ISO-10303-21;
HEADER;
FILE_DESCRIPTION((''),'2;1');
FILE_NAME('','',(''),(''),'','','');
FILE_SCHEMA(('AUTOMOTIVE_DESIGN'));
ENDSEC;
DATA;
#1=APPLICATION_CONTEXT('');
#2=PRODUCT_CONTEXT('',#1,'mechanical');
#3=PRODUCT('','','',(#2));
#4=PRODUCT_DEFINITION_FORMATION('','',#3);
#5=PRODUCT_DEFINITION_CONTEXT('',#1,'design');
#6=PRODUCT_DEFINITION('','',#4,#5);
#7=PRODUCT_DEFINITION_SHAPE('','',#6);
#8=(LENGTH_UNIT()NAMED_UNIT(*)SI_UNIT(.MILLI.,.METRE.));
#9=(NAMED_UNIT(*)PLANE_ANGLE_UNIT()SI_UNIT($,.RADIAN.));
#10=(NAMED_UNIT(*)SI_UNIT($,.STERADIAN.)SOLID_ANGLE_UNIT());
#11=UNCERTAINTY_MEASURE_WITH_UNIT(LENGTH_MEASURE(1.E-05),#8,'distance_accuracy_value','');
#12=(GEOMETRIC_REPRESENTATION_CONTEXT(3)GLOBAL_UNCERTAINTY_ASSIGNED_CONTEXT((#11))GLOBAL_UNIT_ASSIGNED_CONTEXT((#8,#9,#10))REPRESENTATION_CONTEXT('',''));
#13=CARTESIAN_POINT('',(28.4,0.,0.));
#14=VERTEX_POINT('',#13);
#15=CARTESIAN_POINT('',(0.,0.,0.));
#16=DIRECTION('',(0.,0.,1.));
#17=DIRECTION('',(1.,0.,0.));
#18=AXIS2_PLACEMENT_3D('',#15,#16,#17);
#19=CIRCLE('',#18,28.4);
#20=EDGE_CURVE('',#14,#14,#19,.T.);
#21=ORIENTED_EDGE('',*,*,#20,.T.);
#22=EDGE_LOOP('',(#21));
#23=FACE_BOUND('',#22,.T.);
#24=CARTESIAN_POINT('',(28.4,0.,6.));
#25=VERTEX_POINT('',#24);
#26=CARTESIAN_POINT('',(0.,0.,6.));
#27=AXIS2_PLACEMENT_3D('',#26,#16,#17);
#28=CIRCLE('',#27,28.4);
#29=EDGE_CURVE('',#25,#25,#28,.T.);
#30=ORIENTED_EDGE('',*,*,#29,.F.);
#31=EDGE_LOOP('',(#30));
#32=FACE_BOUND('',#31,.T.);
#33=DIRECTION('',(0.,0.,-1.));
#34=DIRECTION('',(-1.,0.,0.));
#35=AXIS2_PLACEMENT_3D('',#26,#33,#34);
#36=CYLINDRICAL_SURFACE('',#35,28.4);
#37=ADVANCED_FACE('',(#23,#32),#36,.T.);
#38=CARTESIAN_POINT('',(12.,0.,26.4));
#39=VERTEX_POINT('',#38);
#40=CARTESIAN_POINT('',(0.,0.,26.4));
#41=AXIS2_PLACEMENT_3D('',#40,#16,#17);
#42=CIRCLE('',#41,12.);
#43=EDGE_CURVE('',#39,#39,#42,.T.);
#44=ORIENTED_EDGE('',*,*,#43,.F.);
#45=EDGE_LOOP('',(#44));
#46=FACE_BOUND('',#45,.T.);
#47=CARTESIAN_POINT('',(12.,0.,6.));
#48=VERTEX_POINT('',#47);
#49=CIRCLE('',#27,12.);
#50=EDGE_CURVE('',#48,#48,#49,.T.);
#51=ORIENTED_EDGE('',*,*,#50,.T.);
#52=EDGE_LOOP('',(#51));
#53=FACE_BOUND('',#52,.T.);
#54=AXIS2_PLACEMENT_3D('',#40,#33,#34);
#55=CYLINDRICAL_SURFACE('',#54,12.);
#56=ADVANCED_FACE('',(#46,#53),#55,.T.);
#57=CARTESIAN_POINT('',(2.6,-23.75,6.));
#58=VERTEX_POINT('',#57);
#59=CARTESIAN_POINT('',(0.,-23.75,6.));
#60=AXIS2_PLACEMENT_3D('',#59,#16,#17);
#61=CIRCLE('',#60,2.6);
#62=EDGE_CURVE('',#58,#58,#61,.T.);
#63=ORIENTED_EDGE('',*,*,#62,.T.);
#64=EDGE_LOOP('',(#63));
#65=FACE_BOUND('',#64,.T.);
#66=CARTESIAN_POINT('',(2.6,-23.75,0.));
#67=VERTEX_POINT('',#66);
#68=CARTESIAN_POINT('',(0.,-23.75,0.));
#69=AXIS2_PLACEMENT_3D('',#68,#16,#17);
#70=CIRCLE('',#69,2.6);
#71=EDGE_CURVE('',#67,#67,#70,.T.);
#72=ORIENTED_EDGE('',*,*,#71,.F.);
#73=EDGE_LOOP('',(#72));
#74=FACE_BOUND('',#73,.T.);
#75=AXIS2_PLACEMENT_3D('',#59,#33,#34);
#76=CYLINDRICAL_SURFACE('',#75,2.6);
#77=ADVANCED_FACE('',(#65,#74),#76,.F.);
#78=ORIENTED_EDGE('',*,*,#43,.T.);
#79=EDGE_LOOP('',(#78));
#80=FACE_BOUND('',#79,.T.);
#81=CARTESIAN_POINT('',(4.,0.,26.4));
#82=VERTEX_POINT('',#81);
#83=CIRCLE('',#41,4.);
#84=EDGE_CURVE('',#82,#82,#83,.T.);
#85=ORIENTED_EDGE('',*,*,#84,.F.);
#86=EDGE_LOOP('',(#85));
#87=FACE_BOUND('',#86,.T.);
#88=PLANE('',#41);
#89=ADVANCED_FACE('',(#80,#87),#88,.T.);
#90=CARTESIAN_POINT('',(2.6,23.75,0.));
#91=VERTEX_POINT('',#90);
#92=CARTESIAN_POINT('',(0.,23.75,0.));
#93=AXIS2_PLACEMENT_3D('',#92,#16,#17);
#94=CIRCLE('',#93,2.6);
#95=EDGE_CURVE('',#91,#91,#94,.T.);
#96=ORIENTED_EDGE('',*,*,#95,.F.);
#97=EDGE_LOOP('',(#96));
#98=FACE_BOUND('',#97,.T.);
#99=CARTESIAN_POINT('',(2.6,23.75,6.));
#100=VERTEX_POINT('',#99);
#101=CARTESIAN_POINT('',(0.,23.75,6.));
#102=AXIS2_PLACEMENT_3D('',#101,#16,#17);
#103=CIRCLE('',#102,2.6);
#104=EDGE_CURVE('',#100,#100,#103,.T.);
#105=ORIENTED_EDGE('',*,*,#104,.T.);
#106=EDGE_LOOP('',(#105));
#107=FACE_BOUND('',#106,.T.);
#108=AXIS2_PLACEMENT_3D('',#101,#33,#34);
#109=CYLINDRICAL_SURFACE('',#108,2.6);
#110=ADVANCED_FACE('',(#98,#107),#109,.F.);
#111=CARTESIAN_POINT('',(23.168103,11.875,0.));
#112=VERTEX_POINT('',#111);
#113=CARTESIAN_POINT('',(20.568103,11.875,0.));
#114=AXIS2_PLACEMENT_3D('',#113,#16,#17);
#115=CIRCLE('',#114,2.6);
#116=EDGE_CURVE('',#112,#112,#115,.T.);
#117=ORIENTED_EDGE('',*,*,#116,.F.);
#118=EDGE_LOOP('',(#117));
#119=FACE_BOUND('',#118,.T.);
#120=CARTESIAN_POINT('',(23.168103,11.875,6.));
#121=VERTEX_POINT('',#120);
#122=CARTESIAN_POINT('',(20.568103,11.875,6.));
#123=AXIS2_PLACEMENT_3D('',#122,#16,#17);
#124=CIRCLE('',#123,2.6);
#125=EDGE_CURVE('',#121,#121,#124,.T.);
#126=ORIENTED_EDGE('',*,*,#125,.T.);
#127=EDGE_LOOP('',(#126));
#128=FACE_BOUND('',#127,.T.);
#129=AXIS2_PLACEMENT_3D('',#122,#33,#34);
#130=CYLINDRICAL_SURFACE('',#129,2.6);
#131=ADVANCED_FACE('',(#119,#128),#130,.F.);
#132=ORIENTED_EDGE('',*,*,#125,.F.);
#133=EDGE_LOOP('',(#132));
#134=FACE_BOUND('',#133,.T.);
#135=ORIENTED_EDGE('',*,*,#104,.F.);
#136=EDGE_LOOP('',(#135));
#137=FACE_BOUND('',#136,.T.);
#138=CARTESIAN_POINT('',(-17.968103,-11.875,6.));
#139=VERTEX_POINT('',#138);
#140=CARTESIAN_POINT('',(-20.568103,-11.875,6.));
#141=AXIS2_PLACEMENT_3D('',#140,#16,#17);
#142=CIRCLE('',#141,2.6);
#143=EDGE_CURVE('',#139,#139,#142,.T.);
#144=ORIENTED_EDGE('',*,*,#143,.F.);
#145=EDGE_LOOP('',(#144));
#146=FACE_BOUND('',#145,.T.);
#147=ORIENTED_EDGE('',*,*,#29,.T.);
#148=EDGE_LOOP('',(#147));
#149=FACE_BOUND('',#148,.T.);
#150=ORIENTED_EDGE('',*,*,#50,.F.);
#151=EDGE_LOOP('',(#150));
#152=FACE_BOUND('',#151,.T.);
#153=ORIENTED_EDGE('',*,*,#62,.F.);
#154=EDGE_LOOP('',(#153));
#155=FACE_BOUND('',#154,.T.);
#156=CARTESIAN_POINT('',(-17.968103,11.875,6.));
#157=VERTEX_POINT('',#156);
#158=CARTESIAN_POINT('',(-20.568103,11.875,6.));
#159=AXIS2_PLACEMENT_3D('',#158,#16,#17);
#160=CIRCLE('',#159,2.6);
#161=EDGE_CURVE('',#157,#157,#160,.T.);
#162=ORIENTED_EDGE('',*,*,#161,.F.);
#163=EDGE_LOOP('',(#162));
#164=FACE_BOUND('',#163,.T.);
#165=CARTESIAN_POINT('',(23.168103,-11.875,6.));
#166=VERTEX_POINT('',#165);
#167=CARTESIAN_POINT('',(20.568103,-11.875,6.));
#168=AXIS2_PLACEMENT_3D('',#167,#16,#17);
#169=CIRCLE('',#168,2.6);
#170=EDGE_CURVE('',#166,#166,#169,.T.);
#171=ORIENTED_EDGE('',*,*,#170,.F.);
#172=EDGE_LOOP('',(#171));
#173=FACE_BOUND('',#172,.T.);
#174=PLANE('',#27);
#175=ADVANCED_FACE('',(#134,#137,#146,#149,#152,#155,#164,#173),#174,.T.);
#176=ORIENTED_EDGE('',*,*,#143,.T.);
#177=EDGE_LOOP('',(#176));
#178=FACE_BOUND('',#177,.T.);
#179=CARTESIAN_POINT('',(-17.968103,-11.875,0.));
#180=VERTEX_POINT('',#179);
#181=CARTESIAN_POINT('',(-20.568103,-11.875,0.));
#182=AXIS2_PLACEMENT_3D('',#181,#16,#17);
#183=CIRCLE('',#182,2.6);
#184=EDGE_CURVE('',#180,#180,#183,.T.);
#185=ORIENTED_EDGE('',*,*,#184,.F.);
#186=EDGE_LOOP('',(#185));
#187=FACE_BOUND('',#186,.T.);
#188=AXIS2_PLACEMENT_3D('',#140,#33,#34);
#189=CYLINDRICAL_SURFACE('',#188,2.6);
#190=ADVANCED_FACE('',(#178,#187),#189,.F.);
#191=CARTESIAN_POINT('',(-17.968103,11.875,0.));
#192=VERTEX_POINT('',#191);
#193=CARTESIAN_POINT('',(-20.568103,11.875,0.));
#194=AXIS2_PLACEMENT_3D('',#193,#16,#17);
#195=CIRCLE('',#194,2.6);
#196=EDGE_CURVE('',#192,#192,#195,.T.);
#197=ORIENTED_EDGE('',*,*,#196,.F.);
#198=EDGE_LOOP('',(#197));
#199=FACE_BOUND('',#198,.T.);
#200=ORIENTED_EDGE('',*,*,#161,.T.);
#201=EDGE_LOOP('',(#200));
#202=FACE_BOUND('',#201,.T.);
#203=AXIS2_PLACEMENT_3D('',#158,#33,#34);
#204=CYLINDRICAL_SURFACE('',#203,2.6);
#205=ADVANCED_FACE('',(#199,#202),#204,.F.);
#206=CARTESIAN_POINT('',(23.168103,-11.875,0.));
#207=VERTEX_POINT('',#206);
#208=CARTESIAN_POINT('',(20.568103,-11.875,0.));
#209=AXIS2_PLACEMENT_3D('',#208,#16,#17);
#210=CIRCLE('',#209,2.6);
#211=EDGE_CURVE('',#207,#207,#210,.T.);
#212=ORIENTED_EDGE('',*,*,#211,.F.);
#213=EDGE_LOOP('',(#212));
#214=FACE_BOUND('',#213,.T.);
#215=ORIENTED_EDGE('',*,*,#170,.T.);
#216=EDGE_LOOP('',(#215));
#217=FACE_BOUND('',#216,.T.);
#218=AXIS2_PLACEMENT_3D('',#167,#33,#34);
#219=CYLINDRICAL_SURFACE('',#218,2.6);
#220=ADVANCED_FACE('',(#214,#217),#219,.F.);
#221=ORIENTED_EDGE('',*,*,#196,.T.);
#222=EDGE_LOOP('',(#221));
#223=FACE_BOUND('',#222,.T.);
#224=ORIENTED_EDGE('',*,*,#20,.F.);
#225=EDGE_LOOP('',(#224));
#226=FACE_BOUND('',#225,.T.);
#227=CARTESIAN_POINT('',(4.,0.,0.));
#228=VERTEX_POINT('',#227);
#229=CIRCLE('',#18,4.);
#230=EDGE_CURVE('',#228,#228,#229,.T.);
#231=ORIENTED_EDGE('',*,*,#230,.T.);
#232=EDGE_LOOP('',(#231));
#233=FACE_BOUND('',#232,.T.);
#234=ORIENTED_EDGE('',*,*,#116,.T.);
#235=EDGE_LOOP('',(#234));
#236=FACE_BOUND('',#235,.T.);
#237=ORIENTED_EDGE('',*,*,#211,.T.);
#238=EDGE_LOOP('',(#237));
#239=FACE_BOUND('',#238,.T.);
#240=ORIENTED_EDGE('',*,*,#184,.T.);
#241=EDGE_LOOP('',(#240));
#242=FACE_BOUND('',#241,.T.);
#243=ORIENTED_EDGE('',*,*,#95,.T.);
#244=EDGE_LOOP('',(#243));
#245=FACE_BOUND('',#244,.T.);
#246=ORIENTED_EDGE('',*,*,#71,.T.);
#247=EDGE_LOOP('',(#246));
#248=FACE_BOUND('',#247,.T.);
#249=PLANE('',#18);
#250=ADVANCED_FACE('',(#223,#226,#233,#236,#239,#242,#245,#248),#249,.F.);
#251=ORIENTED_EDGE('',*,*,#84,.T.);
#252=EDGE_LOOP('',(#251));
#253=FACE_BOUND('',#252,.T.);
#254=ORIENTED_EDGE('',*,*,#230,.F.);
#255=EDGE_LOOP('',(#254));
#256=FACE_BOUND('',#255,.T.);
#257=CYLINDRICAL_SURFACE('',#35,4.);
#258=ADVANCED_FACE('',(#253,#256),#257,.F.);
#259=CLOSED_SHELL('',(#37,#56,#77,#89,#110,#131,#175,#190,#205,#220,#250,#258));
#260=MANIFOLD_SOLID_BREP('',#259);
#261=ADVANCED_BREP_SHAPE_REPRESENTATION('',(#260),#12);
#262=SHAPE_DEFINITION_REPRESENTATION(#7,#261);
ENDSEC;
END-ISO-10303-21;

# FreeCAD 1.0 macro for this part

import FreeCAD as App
import Part
import Sketcher

V = App.Vector
Q = App.Units.Quantity

doc = App.newDocument("Part")
body = doc.addObject("PartDesign::Body", "Body")

sketch1 = body.newObject("Sketcher::SketchObject", "Sketch")
sketch1.AttachmentSupport = (doc.getObject("XY_Plane"), [""])
sketch1.MapMode = "FlatFace"
sketch1.addGeometry([
    Part.Circle(V(0, 0, 0), V(0, 0, 1), 28.4),
    Part.Circle(V(-20.6, -11.9, 0), V(0, 0, 1), 2.6),
    Part.Circle(V(0, -23.8, 0), V(0, 0, 1), 2.6),
    Part.Circle(V(20.6, -11.9, 0), V(0, 0, 1), 2.6),
    Part.Circle(V(-20.6, 11.9, 0), V(0, 0, 1), 2.6),
    Part.Circle(V(0, 0, 0), V(0, 0, 1), 4),
    Part.Circle(V(20.6, 11.9, 0), V(0, 0, 1), 2.6),
    Part.Circle(V(0, 23.8, 0), V(0, 0, 1), 2.6),
], False)
sketch1.addConstraint([
    Sketcher.Constraint("Coincident", 0, 3, -1, 1),
    Sketcher.Constraint("Coincident", 5, 3, -1, 1),
    Sketcher.Constraint("Equal", 1, 2),
    Sketcher.Constraint("Equal", 2, 3),
    Sketcher.Constraint("Equal", 3, 4),
    Sketcher.Constraint("Equal", 4, 6),
    Sketcher.Constraint("Equal", 6, 7),
    Sketcher.Constraint("Symmetric", 3, 3, 4, 3, -1, 1),
    Sketcher.Constraint("Symmetric", 1, 3, 6, 3, -1, 1),
    Sketcher.Constraint("Symmetric", 2, 3, 7, 3, -1, 1),
    Sketcher.Constraint("Symmetric", 1, 3, 3, 3, -2),
    Sketcher.Constraint("PointOnObject", 2, 3, -2),
    Sketcher.Constraint("Diameter", 5, Q("8 mm")),
    Sketcher.Constraint("Diameter", 0, Q("56.8 mm")),
    Sketcher.Constraint("Diameter", 1, Q("5.2 mm")),
    Sketcher.Constraint("DistanceY", 2, 3, -1, 1, Q("23.75 mm")),
    Sketcher.Constraint("DistanceY", 1, 3, 4, 3, Q("23.75 mm")),
    Sketcher.Constraint("DistanceX", 1, 3, -1, 1, Q("20.568103 mm")),
])
pad1 = body.newObject("PartDesign::Pad", "Pad")
pad1.Profile = sketch1
pad1.Length = 6

sketch2 = body.newObject("Sketcher::SketchObject", "Sketch001")
sketch2.AttachmentSupport = (doc.getObject("XY_Plane"), [""])
sketch2.MapMode = "FlatFace"
sketch2.AttachmentOffset = App.Placement(V(0, 0, 6), App.Rotation())
sketch2.addGeometry([
    Part.Circle(V(0, 0, 0), V(0, 0, 1), 12),
    Part.Circle(V(0, 0, 0), V(0, 0, 1), 4),
], False)
sketch2.addConstraint([
    Sketcher.Constraint("Coincident", 0, 3, -1, 1),
    Sketcher.Constraint("Coincident", 1, 3, -1, 1),
    Sketcher.Constraint("Diameter", 0, Q("24 mm")),
    Sketcher.Constraint("Diameter", 1, Q("8 mm")),
])
pad2 = body.newObject("PartDesign::Pad", "Pad001")
pad2.Profile = sketch2
pad2.Length = 20.4

doc.recompute()
